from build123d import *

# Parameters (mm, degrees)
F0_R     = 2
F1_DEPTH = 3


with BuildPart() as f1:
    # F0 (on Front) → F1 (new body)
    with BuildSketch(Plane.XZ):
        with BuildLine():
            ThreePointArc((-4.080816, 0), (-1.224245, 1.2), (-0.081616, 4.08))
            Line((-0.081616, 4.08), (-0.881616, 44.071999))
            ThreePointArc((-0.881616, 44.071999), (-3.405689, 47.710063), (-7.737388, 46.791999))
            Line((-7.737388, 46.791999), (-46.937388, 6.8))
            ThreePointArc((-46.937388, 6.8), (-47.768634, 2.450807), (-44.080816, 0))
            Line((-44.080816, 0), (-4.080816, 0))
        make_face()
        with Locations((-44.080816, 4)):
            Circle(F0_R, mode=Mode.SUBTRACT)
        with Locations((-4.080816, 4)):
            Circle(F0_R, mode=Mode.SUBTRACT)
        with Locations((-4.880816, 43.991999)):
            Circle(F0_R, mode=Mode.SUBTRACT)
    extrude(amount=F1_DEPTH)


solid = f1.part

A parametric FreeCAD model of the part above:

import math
import FreeCAD as App
import Part
import Sketcher
from FreeCAD import Vector
Q = App.Units.Quantity

doc = App.newDocument("Part")
body = doc.addObject("PartDesign::Body", "Body")

sketch1 = body.newObject("Sketcher::SketchObject", "Sketch")
sketch1.AttachmentSupport = (doc.getObject("XZ_Plane"), [""])
sketch1.MapMode = "FlatFace"
sketch1.addGeometry(Part.ArcOfCircle(Part.Circle(Vector(-4.080817, 4.000001, 0), Vector(0, 0, 1), 4.000001), math.radians(-89.99999), math.radians(1.145981)), False)
sketch1.addGeometry(Part.LineSegment(Vector(-0.081616, 4.08, 0), Vector(-0.881616, 44.071999, 0)), False)
sketch1.addGeometry(Part.ArcOfCircle(Part.Circle(Vector(-4.880816, 43.991999, 0), Vector(0, 0, 1), 4), math.radians(1.145998), math.radians(135.572994)), False)
sketch1.addGeometry(Part.LineSegment(Vector(-7.737388, 46.791999, 0), Vector(-46.937388, 6.8, 0)), False)
sketch1.addGeometry(Part.ArcOfCircle(Part.Circle(Vector(-44.080816, 4, 0), Vector(0, 0, 1), 4), math.radians(135.573007), math.radians(269.999998)), False)
sketch1.addGeometry(Part.LineSegment(Vector(-44.080816, 0, 0), Vector(-4.080816, 0, 0)), False)
sketch1.addGeometry(Part.Circle(Vector(-44.080816, 4, 0), Vector(0, 0, 1), 2), False)
sketch1.addGeometry(Part.Circle(Vector(-4.080816, 4, 0), Vector(0, 0, 1), 2), False)
sketch1.addGeometry(Part.Circle(Vector(-4.880816, 43.991999, 0), Vector(0, 0, 1), 2), False)
sketch1.addConstraint(Sketcher.Constraint("Tangent", 0, 2, 1, 1))
sketch1.addConstraint(Sketcher.Constraint("Tangent", 1, 2, 2, 1))
sketch1.addConstraint(Sketcher.Constraint("Tangent", 2, 2, 3, 1))
sketch1.addConstraint(Sketcher.Constraint("Tangent", 3, 2, 4, 1))
sketch1.addConstraint(Sketcher.Constraint("Tangent", 4, 2, 5, 1))
sketch1.addConstraint(Sketcher.Constraint("Tangent", 5, 2, 0, 1))
sketch1.addConstraint(Sketcher.Constraint("Horizontal", 5))
sketch1.addConstraint(Sketcher.Constraint("Coincident", 6, 3, 4, 3))
sketch1.addConstraint(Sketcher.Constraint("Coincident", 7, 3, 0, 3))
sketch1.addConstraint(Sketcher.Constraint("Coincident", 8, 3, 2, 3))
sketch1.addConstraint(Sketcher.Constraint("Equal", 0, 2))
sketch1.addConstraint(Sketcher.Constraint("Equal", 2, 4))
sketch1.addConstraint(Sketcher.Constraint("Equal", 6, 7))
sketch1.addConstraint(Sketcher.Constraint("Equal", 7, 8))
sketch1.addConstraint(Sketcher.Constraint("PointOnObject", 4, 2, -1))
sketch1.addConstraint(Sketcher.Constraint("Diameter", 6, Q("4 mm")))
sketch1.addConstraint(Sketcher.Constraint("Radius", 0, Q("4.000001 mm")))
sketch1.addConstraint(Sketcher.Constraint("DistanceX", 5, 1, 5, 2, Q("40 mm")))
sketch1.addConstraint(Sketcher.Constraint("Distance", 1, Q("40 mm")))
sketch1.addConstraint(Sketcher.Constraint("Distance", 3, Q("56 mm")))
sketch1.addConstraint(Sketcher.Constraint("DistanceX", 0, 3, -1, 1, Q("4.080817 mm")))
pad1 = body.newObject("PartDesign::Pad", "Pad")
pad1.Profile = sketch1
pad1.Length = 3

doc.recompute()
